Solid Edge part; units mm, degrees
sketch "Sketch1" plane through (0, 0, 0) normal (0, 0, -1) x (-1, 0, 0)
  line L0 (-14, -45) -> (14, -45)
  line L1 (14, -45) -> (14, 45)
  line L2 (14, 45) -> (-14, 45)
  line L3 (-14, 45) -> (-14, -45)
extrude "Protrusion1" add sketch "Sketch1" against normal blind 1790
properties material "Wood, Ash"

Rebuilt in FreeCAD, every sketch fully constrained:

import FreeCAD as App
import Part
import Sketcher


def add_polygon(sketch, points):
    """Adds a closed chain of lines whose ends are joined by coincident constraints."""
    first, n = sketch.GeometryCount, len(points)
    for a, b in zip(points, points[1:] + points[:1]):
        sketch.addGeometry(Part.LineSegment(App.Vector(*a, 0), App.Vector(*b, 0)), False)
    for i in range(n):
        sketch.addConstraint(Sketcher.Constraint("Coincident", first + i, 2, first + (i + 1) % n, 1))

doc = App.newDocument("Part")
body = doc.addObject("PartDesign::Body", "Body")

sketch1 = doc.addObject("Sketcher::SketchObject", "Sketch")
body.addObject(sketch1)
sketch1.AttachmentSupport = (doc.XY_Plane, [""])
sketch1.MapMode = "FlatFace"
add_polygon(sketch1, [(14, 45), (14, -45), (-14, -45), (-14, 45)])
sketch1.addConstraint([
    Sketcher.Constraint("Vertical", 0),
    Sketcher.Constraint("Horizontal", 1),
    Sketcher.Constraint("Vertical", 2),
    Sketcher.Constraint("Horizontal", 3),
    Sketcher.Constraint("Symmetric", 0, 2, 2, 2, -1, 1),
    Sketcher.Constraint("DistanceX", 1, 2, 1, 1, 28.0),
    Sketcher.Constraint("DistanceY", 0, 2, 0, 1, 90.0),
])
pad1 = doc.addObject("PartDesign::Pad", "Pad")
body.addObject(pad1)
pad1.Profile = sketch1
pad1.Length = 1790

doc.recompute()
